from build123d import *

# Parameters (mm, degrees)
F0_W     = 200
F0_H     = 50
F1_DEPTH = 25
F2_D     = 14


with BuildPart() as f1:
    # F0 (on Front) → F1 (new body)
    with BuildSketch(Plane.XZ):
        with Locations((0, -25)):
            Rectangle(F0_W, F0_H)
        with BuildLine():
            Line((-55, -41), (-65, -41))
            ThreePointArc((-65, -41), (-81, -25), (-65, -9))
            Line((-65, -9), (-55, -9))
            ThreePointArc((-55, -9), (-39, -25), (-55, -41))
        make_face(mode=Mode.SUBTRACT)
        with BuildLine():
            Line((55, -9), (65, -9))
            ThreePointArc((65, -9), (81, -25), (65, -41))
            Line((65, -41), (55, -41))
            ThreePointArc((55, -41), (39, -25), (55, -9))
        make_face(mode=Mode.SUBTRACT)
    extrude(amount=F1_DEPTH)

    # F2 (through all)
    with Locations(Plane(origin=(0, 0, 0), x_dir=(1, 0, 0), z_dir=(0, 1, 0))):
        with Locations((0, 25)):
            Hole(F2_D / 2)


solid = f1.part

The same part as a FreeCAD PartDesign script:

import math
import FreeCAD as App
import Part
import Sketcher
Q = App.Units.Quantity

doc = App.newDocument("Part")
body = doc.addObject("PartDesign::Body", "Body")

# Sketch on XZ plane
sketch1 = doc.addObject("Sketcher::SketchObject", "Sketch")
body.addObject(sketch1)
sketch1.AttachmentSupport = (doc.XZ_Plane, [""])
sketch1.MapMode = "FlatFace"
sketch1.addGeometry([
    Part.LineSegment(App.Vector(-100, 0, 0), App.Vector(-100, -50, 0)),  # 0
    Part.LineSegment(App.Vector(-100, -50, 0), App.Vector(100, -50, 0)),  # 1
    Part.LineSegment(App.Vector(100, -50, 0), App.Vector(100, 0, 0)),  # 2
    Part.LineSegment(App.Vector(100, 0, 0), App.Vector(-100, 0, 0)),  # 3
    Part.ArcOfCircle(Part.Circle(App.Vector(-55, -25, 0), App.Vector(0, 0, 1), 16), math.radians(-90), math.radians(90)),  # 4
    Part.LineSegment(App.Vector(-55, -41, 0), App.Vector(-65, -41, 0)),  # 5
    Part.ArcOfCircle(Part.Circle(App.Vector(-65, -25, 0), App.Vector(0, 0, 1), 16), math.radians(90), math.radians(270)),  # 6
    Part.LineSegment(App.Vector(-65, -9, 0), App.Vector(-55, -9, 0)),  # 7
    Part.ArcOfCircle(Part.Circle(App.Vector(55, -25, 0), App.Vector(0, 0, 1), 16), math.radians(90), math.radians(270)),  # 8
    Part.LineSegment(App.Vector(55, -9, 0), App.Vector(65, -9, 0)),  # 9
    Part.ArcOfCircle(Part.Circle(App.Vector(65, -25, 0), App.Vector(0, 0, 1), 16), math.radians(-90), math.radians(90)),  # 10
    Part.LineSegment(App.Vector(65, -41, 0), App.Vector(55, -41, 0)),  # 11
], False)
sketch1.addConstraint([
    Sketcher.Constraint("Coincident", 0, 2, 1, 1),
    Sketcher.Constraint("Coincident", 1, 2, 2, 1),
    Sketcher.Constraint("Coincident", 2, 2, 3, 1),
    Sketcher.Constraint("Coincident", 3, 2, 0, 1),
    Sketcher.Constraint("Tangent", 4, 1, 5, 1),
    Sketcher.Constraint("Tangent", 5, 2, 6, 2),
    Sketcher.Constraint("Tangent", 6, 1, 7, 1),
    Sketcher.Constraint("Tangent", 7, 2, 4, 2),
    Sketcher.Constraint("Tangent", 8, 1, 9, 1),
    Sketcher.Constraint("Tangent", 9, 2, 10, 2),
    Sketcher.Constraint("Tangent", 10, 1, 11, 1),
    Sketcher.Constraint("Tangent", 11, 2, 8, 2),
    Sketcher.Constraint("Vertical", 0),
    Sketcher.Constraint("Horizontal", 1),
    Sketcher.Constraint("Vertical", 2),
    Sketcher.Constraint("Horizontal", 3),
    Sketcher.Constraint("Horizontal", 5),
    Sketcher.Constraint("Horizontal", 7),
    Sketcher.Constraint("Horizontal", 9),
    Sketcher.Constraint("Horizontal", 11),
    Sketcher.Constraint("Equal", 6, 8),
    Sketcher.Constraint("Symmetric", 2, 2, 3, 2, -1, 1),
    Sketcher.Constraint("Symmetric", 4, 3, 8, 3, -2),
    Sketcher.Constraint("Equal", 7, 9),
    Sketcher.Constraint("Radius", 4, Q("16 mm")),
    Sketcher.Constraint("DistanceX", 1, 1, 1, 2, Q("200 mm")),
    Sketcher.Constraint("DistanceX", 5, 2, 5, 1, Q("10 mm")),
    Sketcher.Constraint("DistanceY", 0, 2, 0, 1, Q("50 mm")),
    Sketcher.Constraint("DistanceX", 4, 3, -1, 1, Q("55 mm")),
    Sketcher.Constraint("DistanceY", 4, 3, -1, 1, Q("25 mm")),
])
pad1 = doc.addObject("PartDesign::Pad", "Pad")
body.addObject(pad1)
pad1.Profile = sketch1
pad1.Length = 25

# Sketch on XZ plane
sketch2 = doc.addObject("Sketcher::SketchObject", "Sketch001")
body.addObject(sketch2)
sketch2.AttachmentSupport = (doc.XZ_Plane, [""])
sketch2.MapMode = "FlatFace"
sketch2.addGeometry(Part.Circle(App.Vector(0, -25, 0), App.Vector(0, 0, 1), 7), False)
sketch2.addConstraint([
    Sketcher.Constraint("PointOnObject", 0, 3, -2),
    Sketcher.Constraint("Diameter", 0, Q("14 mm")),
    Sketcher.Constraint("DistanceY", 0, 3, -1, 1, Q("25 mm")),
])
doc.recompute()
hole = doc.addObject("PartDesign::Hole", "Hole")
body.addObject(hole)
hole.Profile = sketch2
hole.ThreadType = "None"
hole.Diameter = 14
hole.DepthType = "ThroughAll"
hole.Reversed = True

doc.recompute()
